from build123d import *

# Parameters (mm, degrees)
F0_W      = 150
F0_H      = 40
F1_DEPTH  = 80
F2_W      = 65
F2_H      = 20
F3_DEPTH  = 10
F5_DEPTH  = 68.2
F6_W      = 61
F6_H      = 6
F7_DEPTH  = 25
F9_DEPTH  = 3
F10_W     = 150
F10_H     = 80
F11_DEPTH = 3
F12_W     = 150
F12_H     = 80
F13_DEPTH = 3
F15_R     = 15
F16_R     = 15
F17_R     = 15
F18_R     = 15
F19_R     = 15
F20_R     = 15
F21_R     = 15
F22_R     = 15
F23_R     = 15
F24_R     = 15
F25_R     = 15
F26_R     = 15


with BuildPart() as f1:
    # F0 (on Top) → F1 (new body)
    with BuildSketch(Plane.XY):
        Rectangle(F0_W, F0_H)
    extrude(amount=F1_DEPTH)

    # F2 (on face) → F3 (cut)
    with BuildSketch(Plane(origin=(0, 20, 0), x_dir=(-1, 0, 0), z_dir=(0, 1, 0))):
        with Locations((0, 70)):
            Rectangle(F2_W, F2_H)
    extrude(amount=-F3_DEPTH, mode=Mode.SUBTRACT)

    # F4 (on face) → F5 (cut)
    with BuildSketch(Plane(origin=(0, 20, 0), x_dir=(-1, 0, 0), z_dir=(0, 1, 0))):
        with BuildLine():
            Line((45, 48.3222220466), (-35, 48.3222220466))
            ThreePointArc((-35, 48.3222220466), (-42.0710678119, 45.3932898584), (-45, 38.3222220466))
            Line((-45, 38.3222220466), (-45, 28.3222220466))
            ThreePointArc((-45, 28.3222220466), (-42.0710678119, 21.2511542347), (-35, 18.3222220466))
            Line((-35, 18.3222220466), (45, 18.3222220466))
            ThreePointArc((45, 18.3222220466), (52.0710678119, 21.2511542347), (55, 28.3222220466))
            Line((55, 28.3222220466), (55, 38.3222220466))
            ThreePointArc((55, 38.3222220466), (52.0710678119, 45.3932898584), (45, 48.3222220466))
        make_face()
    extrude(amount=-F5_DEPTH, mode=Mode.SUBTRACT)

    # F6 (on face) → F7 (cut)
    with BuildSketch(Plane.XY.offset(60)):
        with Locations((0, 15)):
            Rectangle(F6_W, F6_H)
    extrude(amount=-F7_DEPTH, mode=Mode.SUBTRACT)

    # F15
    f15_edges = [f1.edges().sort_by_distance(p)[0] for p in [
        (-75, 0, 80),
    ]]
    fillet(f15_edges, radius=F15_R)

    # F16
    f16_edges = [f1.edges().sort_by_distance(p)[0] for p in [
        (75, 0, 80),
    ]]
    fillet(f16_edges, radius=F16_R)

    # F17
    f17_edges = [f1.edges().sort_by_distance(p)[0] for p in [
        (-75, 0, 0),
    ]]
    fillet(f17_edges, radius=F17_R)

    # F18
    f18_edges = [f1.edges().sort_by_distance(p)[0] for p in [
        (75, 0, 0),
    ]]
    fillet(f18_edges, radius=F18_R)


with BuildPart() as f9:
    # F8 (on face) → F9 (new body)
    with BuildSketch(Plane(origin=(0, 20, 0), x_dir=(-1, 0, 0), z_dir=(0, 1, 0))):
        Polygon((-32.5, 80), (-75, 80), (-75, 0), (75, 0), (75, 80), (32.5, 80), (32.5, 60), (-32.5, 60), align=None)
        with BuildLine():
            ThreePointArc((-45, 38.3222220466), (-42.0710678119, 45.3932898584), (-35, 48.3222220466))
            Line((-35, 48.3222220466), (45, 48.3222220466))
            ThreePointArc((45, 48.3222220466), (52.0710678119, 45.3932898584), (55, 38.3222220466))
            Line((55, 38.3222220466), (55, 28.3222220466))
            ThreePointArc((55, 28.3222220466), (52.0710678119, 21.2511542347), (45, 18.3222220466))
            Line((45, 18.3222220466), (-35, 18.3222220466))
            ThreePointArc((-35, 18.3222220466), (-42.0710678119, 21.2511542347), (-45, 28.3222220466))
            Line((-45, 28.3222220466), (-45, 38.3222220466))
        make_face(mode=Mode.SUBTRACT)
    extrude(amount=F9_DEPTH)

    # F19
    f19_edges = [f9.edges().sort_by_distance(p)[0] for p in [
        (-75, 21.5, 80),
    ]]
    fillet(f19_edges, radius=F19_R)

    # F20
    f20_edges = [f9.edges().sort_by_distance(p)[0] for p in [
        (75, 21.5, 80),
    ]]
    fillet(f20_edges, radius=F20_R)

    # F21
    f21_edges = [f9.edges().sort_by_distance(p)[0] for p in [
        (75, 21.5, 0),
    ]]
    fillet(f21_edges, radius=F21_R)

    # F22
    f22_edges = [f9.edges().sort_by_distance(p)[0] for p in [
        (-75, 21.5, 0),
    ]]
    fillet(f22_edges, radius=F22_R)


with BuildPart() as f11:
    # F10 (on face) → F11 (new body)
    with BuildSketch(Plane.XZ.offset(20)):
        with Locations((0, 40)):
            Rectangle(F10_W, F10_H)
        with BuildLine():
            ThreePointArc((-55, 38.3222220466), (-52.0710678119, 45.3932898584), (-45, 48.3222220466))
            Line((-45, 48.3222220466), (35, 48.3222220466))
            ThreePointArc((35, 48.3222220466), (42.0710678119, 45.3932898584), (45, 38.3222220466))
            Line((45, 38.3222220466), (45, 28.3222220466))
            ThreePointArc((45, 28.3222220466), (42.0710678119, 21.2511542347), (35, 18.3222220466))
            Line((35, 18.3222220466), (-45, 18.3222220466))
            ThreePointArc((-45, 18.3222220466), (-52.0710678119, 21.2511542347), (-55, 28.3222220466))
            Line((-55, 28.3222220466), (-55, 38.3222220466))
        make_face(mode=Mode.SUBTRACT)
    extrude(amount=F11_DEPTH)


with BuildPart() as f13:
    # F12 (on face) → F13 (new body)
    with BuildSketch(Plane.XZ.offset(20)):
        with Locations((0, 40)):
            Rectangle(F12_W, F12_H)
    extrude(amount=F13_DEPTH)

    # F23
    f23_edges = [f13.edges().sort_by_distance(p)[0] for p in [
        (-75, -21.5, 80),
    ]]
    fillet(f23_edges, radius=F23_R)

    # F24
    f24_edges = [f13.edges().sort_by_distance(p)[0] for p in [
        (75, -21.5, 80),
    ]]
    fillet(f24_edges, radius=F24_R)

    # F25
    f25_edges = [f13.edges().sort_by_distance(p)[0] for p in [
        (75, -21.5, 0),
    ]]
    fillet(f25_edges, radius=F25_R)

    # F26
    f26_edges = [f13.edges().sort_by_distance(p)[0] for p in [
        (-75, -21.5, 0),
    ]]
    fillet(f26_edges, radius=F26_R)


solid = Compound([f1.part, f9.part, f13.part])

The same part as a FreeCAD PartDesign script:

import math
import FreeCAD as App
import Part
import Sketcher
Q = App.Units.Quantity


def edges_at(feature, points):
    """Names of the edges that pass closest to the given points."""
    edges = feature.Shape.Edges
    near = lambda p: min(range(len(edges)), key=lambda i: edges[i].distToShape(Part.Vertex(*p))[0])
    return sorted({f"Edge{near(p) + 1}" for p in points})

doc = App.newDocument("Part")
body = doc.addObject("PartDesign::Body", "Body")

sketch1 = body.newObject("Sketcher::SketchObject", "Sketch")
sketch1.AttachmentSupport = (doc.getObject("XY_Plane"), [""])
sketch1.MapMode = "FlatFace"
sketch1.addGeometry(Part.LineSegment(App.Vector(-75, 20, 0), App.Vector(-75, -20, 0)), False)
sketch1.addGeometry(Part.LineSegment(App.Vector(-75, -20, 0), App.Vector(75, -20, 0)), False)
sketch1.addGeometry(Part.LineSegment(App.Vector(75, -20, 0), App.Vector(75, 20, 0)), False)
sketch1.addGeometry(Part.LineSegment(App.Vector(75, 20, 0), App.Vector(-75, 20, 0)), False)
sketch1.addConstraint(Sketcher.Constraint("Coincident", 0, 2, 1, 1))
sketch1.addConstraint(Sketcher.Constraint("Coincident", 1, 2, 2, 1))
sketch1.addConstraint(Sketcher.Constraint("Coincident", 2, 2, 3, 1))
sketch1.addConstraint(Sketcher.Constraint("Coincident", 3, 2, 0, 1))
sketch1.addConstraint(Sketcher.Constraint("Vertical", 0))
sketch1.addConstraint(Sketcher.Constraint("Horizontal", 1))
sketch1.addConstraint(Sketcher.Constraint("Vertical", 2))
sketch1.addConstraint(Sketcher.Constraint("Horizontal", 3))
sketch1.addConstraint(Sketcher.Constraint("Symmetric", 0, 2, 2, 2, -1, 1))
sketch1.addConstraint(Sketcher.Constraint("DistanceX", 1, 1, 1, 2, Q("150 mm")))
sketch1.addConstraint(Sketcher.Constraint("DistanceY", 0, 2, 0, 1, Q("40 mm")))
pad1 = body.newObject("PartDesign::Pad", "Pad")
pad1.Profile = sketch1
pad1.Length = 80

sketch2 = body.newObject("Sketcher::SketchObject", "Sketch001")
sketch2.AttachmentSupport = (doc.getObject("XZ_Plane"), [""])
sketch2.MapMode = "FlatFace"
sketch2.AttachmentOffset = App.Placement(App.Vector(0, 0, -20), App.Rotation())
sketch2.addGeometry(Part.LineSegment(App.Vector(32, 80, 0), App.Vector(32, 60, 0)), False)
sketch2.addGeometry(Part.LineSegment(App.Vector(32, 60, 0), App.Vector(-32, 60, 0)), False)
sketch2.addGeometry(Part.LineSegment(App.Vector(-32, 60, 0), App.Vector(-32, 80, 0)), False)
sketch2.addGeometry(Part.LineSegment(App.Vector(-32, 80, 0), App.Vector(32, 80, 0)), False)
sketch2.addConstraint(Sketcher.Constraint("Coincident", 0, 2, 1, 1))
sketch2.addConstraint(Sketcher.Constraint("Coincident", 1, 2, 2, 1))
sketch2.addConstraint(Sketcher.Constraint("Coincident", 2, 2, 3, 1))
sketch2.addConstraint(Sketcher.Constraint("Coincident", 3, 2, 0, 1))
sketch2.addConstraint(Sketcher.Constraint("Vertical", 0))
sketch2.addConstraint(Sketcher.Constraint("Horizontal", 1))
sketch2.addConstraint(Sketcher.Constraint("Vertical", 2))
sketch2.addConstraint(Sketcher.Constraint("Horizontal", 3))
sketch2.addConstraint(Sketcher.Constraint("DistanceX", 1, 2, 1, 1, Q("65 mm")))
sketch2.addConstraint(Sketcher.Constraint("DistanceY", 0, 2, 0, 1, Q("20 mm")))
sketch2.addConstraint(Sketcher.Constraint("DistanceY", -1, 1, 0, 2, Q("60 mm")))
sketch2.addConstraint(Sketcher.Constraint("DistanceX", -1, 1, 0, 2, Q("32.5 mm")))
pocket1 = body.newObject("PartDesign::Pocket", "Pocket")
pocket1.Profile = sketch2
pocket1.Length = 10
pocket1.Reversed = True

sketch3 = body.newObject("Sketcher::SketchObject", "Sketch002")
sketch3.AttachmentSupport = (doc.getObject("XZ_Plane"), [""])
sketch3.MapMode = "FlatFace"
sketch3.AttachmentOffset = App.Placement(App.Vector(0, 0, -20), App.Rotation())
sketch3.addGeometry(Part.LineSegment(App.Vector(-45, 48, 0), App.Vector(35, 48, 0)), False)
sketch3.addGeometry(Part.ArcOfCircle(Part.Circle(App.Vector(35, 38, 0), App.Vector(0, 0, 1), 10), math.radians(0), math.radians(90)), False)
sketch3.addGeometry(Part.LineSegment(App.Vector(45, 38, 0), App.Vector(45, 28, 0)), False)
sketch3.addGeometry(Part.ArcOfCircle(Part.Circle(App.Vector(35, 28, 0), App.Vector(0, 0, 1), 10), math.radians(-90), math.radians(0)), False)
sketch3.addGeometry(Part.LineSegment(App.Vector(35, 18, 0), App.Vector(-45, 18, 0)), False)
sketch3.addGeometry(Part.ArcOfCircle(Part.Circle(App.Vector(-45, 28, 0), App.Vector(0, 0, 1), 10), math.radians(180), math.radians(270)), False)
sketch3.addGeometry(Part.LineSegment(App.Vector(-55, 28, 0), App.Vector(-55, 38, 0)), False)
sketch3.addGeometry(Part.ArcOfCircle(Part.Circle(App.Vector(-45, 38, 0), App.Vector(0, 0, 1), 10), math.radians(90), math.radians(180)), False)
sketch3.addConstraint(Sketcher.Constraint("Tangent", 0, 2, 1, 2))
sketch3.addConstraint(Sketcher.Constraint("Tangent", 1, 1, 2, 1))
sketch3.addConstraint(Sketcher.Constraint("Tangent", 2, 2, 3, 2))
sketch3.addConstraint(Sketcher.Constraint("Tangent", 3, 1, 4, 1))
sketch3.addConstraint(Sketcher.Constraint("Tangent", 4, 2, 5, 2))
sketch3.addConstraint(Sketcher.Constraint("Tangent", 5, 1, 6, 1))
sketch3.addConstraint(Sketcher.Constraint("Tangent", 6, 2, 7, 2))
sketch3.addConstraint(Sketcher.Constraint("Tangent", 7, 1, 0, 1))
sketch3.addConstraint(Sketcher.Constraint("Horizontal", 0))
sketch3.addConstraint(Sketcher.Constraint("Vertical", 2))
sketch3.addConstraint(Sketcher.Constraint("Horizontal", 4))
sketch3.addConstraint(Sketcher.Constraint("Vertical", 6))
sketch3.addConstraint(Sketcher.Constraint("Equal", 1, 3))
sketch3.addConstraint(Sketcher.Constraint("Equal", 3, 5))
sketch3.addConstraint(Sketcher.Constraint("Equal", 5, 7))
sketch3.addConstraint(Sketcher.Constraint("Radius", 1, Q("10 mm")))
sketch3.addConstraint(Sketcher.Constraint("DistanceX", 0, 1, 0, 2, Q("80 mm")))
sketch3.addConstraint(Sketcher.Constraint("DistanceY", 2, 2, 2, 1, Q("10 mm")))
sketch3.addConstraint(Sketcher.Constraint("DistanceX", -1, 1, 1, 3, Q("35 mm")))
sketch3.addConstraint(Sketcher.Constraint("DistanceY", -1, 1, 1, 3, Q("38.322222 mm")))
pocket2 = body.newObject("PartDesign::Pocket", "Pocket001")
pocket2.Profile = sketch3
pocket2.Length = 68.2
pocket2.Reversed = True

sketch4 = body.newObject("Sketcher::SketchObject", "Sketch003")
sketch4.AttachmentSupport = (doc.getObject("XY_Plane"), [""])
sketch4.MapMode = "FlatFace"
sketch4.AttachmentOffset = App.Placement(App.Vector(0, 0, 60), App.Rotation())
sketch4.addGeometry(Part.LineSegment(App.Vector(-30, 18, 0), App.Vector(-30, 12, 0)), False)
sketch4.addGeometry(Part.LineSegment(App.Vector(-30, 12, 0), App.Vector(30, 12, 0)), False)
sketch4.addGeometry(Part.LineSegment(App.Vector(30, 12, 0), App.Vector(30, 18, 0)), False)
sketch4.addGeometry(Part.LineSegment(App.Vector(30, 18, 0), App.Vector(-30, 18, 0)), False)
sketch4.addConstraint(Sketcher.Constraint("Coincident", 0, 2, 1, 1))
sketch4.addConstraint(Sketcher.Constraint("Coincident", 1, 2, 2, 1))
sketch4.addConstraint(Sketcher.Constraint("Coincident", 2, 2, 3, 1))
sketch4.addConstraint(Sketcher.Constraint("Coincident", 3, 2, 0, 1))
sketch4.addConstraint(Sketcher.Constraint("Vertical", 0))
sketch4.addConstraint(Sketcher.Constraint("Horizontal", 1))
sketch4.addConstraint(Sketcher.Constraint("Vertical", 2))
sketch4.addConstraint(Sketcher.Constraint("Horizontal", 3))
sketch4.addConstraint(Sketcher.Constraint("DistanceX", 1, 1, 1, 2, Q("61 mm")))
sketch4.addConstraint(Sketcher.Constraint("DistanceY", 0, 2, 0, 1, Q("6 mm")))
sketch4.addConstraint(Sketcher.Constraint("DistanceY", -1, 1, 0, 2, Q("12 mm")))
sketch4.addConstraint(Sketcher.Constraint("DistanceX", 0, 2, -1, 1, Q("30.5 mm")))
pocket3 = body.newObject("PartDesign::Pocket", "Pocket002")
pocket3.Profile = sketch4
pocket3.Length = 25
doc.recompute()

fillet = body.newObject("PartDesign::Fillet", "Fillet")
fillet.Base = (pocket3, edges_at(pocket3, [(-75, 0, 80)]))
fillet.Radius = 15
doc.recompute()

fillet2 = body.newObject("PartDesign::Fillet", "Fillet001")
fillet2.Base = (fillet, edges_at(fillet, [(75, 0, 80)]))
fillet2.Radius = 15
doc.recompute()

fillet3 = body.newObject("PartDesign::Fillet", "Fillet002")
fillet3.Base = (fillet2, edges_at(fillet2, [(-75, 0, 0)]))
fillet3.Radius = 15
doc.recompute()

fillet4 = body.newObject("PartDesign::Fillet", "Fillet003")
fillet4.Base = (fillet3, edges_at(fillet3, [(75, 0, 0)]))
fillet4.Radius = 15
body2 = doc.addObject("PartDesign::Body", "Body001")

sketch5 = body2.newObject("Sketcher::SketchObject", "Sketch004")
sketch5.AttachmentSupport = (doc.getObject("XZ_Plane001"), [""])
sketch5.MapMode = "FlatFace"
sketch5.AttachmentOffset = App.Placement(App.Vector(0, 0, -20), App.Rotation())
sketch5.addGeometry(Part.LineSegment(App.Vector(32, 80, 0), App.Vector(75, 80, 0)), False)
sketch5.addGeometry(Part.LineSegment(App.Vector(75, 80, 0), App.Vector(75, 0, 0)), False)
sketch5.addGeometry(Part.LineSegment(App.Vector(75, 0, 0), App.Vector(-75, 0, 0)), False)
sketch5.addGeometry(Part.LineSegment(App.Vector(-75, 0, 0), App.Vector(-75, 80, 0)), False)
sketch5.addGeometry(Part.LineSegment(App.Vector(-75, 80, 0), App.Vector(-32, 80, 0)), False)
sketch5.addGeometry(Part.LineSegment(App.Vector(-32, 80, 0), App.Vector(-32, 60, 0)), False)
sketch5.addGeometry(Part.LineSegment(App.Vector(-32, 60, 0), App.Vector(32, 60, 0)), False)
sketch5.addGeometry(Part.LineSegment(App.Vector(32, 60, 0), App.Vector(32, 80, 0)), False)
sketch5.addGeometry(Part.LineSegment(App.Vector(45, 28, 0), App.Vector(45, 38, 0)), False)
sketch5.addGeometry(Part.ArcOfCircle(Part.Circle(App.Vector(35, 38, 0), App.Vector(0, 0, 1), 10), math.radians(0), math.radians(90)), False)
sketch5.addGeometry(Part.LineSegment(App.Vector(35, 48, 0), App.Vector(-45, 48, 0)), False)
sketch5.addGeometry(Part.ArcOfCircle(Part.Circle(App.Vector(-45, 38, 0), App.Vector(0, 0, 1), 10), math.radians(90), math.radians(180)), False)
sketch5.addGeometry(Part.LineSegment(App.Vector(-55, 38, 0), App.Vector(-55, 28, 0)), False)
sketch5.addGeometry(Part.ArcOfCircle(Part.Circle(App.Vector(-45, 28, 0), App.Vector(0, 0, 1), 10), math.radians(180), math.radians(270)), False)
sketch5.addGeometry(Part.LineSegment(App.Vector(-45, 18, 0), App.Vector(35, 18, 0)), False)
sketch5.addGeometry(Part.ArcOfCircle(Part.Circle(App.Vector(35, 28, 0), App.Vector(0, 0, 1), 10), math.radians(-90), math.radians(0)), False)
sketch5.addConstraint(Sketcher.Constraint("Coincident", 0, 2, 1, 1))
sketch5.addConstraint(Sketcher.Constraint("Coincident", 1, 2, 2, 1))
sketch5.addConstraint(Sketcher.Constraint("Coincident", 2, 2, 3, 1))
sketch5.addConstraint(Sketcher.Constraint("Coincident", 3, 2, 4, 1))
sketch5.addConstraint(Sketcher.Constraint("Coincident", 4, 2, 5, 1))
sketch5.addConstraint(Sketcher.Constraint("Coincident", 5, 2, 6, 1))
sketch5.addConstraint(Sketcher.Constraint("Coincident", 6, 2, 7, 1))
sketch5.addConstraint(Sketcher.Constraint("Coincident", 7, 2, 0, 1))
sketch5.addConstraint(Sketcher.Constraint("Tangent", 8, 2, 9, 1))
sketch5.addConstraint(Sketcher.Constraint("Tangent", 9, 2, 10, 1))
sketch5.addConstraint(Sketcher.Constraint("Tangent", 10, 2, 11, 1))
sketch5.addConstraint(Sketcher.Constraint("Tangent", 11, 2, 12, 1))
sketch5.addConstraint(Sketcher.Constraint("Tangent", 12, 2, 13, 1))
sketch5.addConstraint(Sketcher.Constraint("Tangent", 13, 2, 14, 1))
sketch5.addConstraint(Sketcher.Constraint("Tangent", 14, 2, 15, 1))
sketch5.addConstraint(Sketcher.Constraint("Tangent", 15, 2, 8, 1))
sketch5.addConstraint(Sketcher.Constraint("Horizontal", 0))
sketch5.addConstraint(Sketcher.Constraint("Vertical", 1))
sketch5.addConstraint(Sketcher.Constraint("Horizontal", 2))
sketch5.addConstraint(Sketcher.Constraint("Vertical", 3))
sketch5.addConstraint(Sketcher.Constraint("Horizontal", 4))
sketch5.addConstraint(Sketcher.Constraint("Vertical", 5))
sketch5.addConstraint(Sketcher.Constraint("Horizontal", 6))
sketch5.addConstraint(Sketcher.Constraint("Vertical", 7))
sketch5.addConstraint(Sketcher.Constraint("Vertical", 8))
sketch5.addConstraint(Sketcher.Constraint("Horizontal", 10))
sketch5.addConstraint(Sketcher.Constraint("Vertical", 12))
sketch5.addConstraint(Sketcher.Constraint("Horizontal", 14))
sketch5.addConstraint(Sketcher.Constraint("Equal", 9, 11))
sketch5.addConstraint(Sketcher.Constraint("Equal", 11, 13))
sketch5.addConstraint(Sketcher.Constraint("Equal", 13, 15))
sketch5.addConstraint(Sketcher.Constraint("Symmetric", 1, 2, 2, 2, -1, 1))
sketch5.addConstraint(Sketcher.Constraint("Symmetric", 4, 2, 7, 2, -2))
sketch5.addConstraint(Sketcher.Constraint("Equal", 14, 1))
sketch5.addConstraint(Sketcher.Constraint("Radius", 9, Q("10 mm")))
sketch5.addConstraint(Sketcher.Constraint("DistanceX", 2, 2, 2, 1, Q("150 mm")))
sketch5.addConstraint(Sketcher.Constraint("DistanceX", 6, 1, 6, 2, Q("65 mm")))
sketch5.addConstraint(Sketcher.Constraint("DistanceX", 10, 2, 10, 1, Q("80 mm")))
sketch5.addConstraint(Sketcher.Constraint("DistanceY", 5, 2, 5, 1, Q("20 mm")))
sketch5.addConstraint(Sketcher.Constraint("DistanceY", 8, 1, 8, 2, Q("10 mm")))
sketch5.addConstraint(Sketcher.Constraint("DistanceX", -1, 1, 9, 3, Q("35 mm")))
sketch5.addConstraint(Sketcher.Constraint("DistanceY", -1, 1, 9, 3, Q("38.322222 mm")))
pad2 = body2.newObject("PartDesign::Pad", "Pad001")
pad2.Profile = sketch5
pad2.Length = 3
pad2.Reversed = True
doc.recompute()

fillet5 = body2.newObject("PartDesign::Fillet", "Fillet004")
fillet5.Base = (pad2, edges_at(pad2, [(-75, 21.5, 80)]))
fillet5.Radius = 15
doc.recompute()

fillet6 = body2.newObject("PartDesign::Fillet", "Fillet005")
fillet6.Base = (fillet5, edges_at(fillet5, [(75, 21.5, 80)]))
fillet6.Radius = 15
doc.recompute()

fillet7 = body2.newObject("PartDesign::Fillet", "Fillet006")
fillet7.Base = (fillet6, edges_at(fillet6, [(75, 21.5, 0)]))
fillet7.Radius = 15
doc.recompute()

fillet8 = body2.newObject("PartDesign::Fillet", "Fillet007")
fillet8.Base = (fillet7, edges_at(fillet7, [(-75, 21.5, 0)]))
fillet8.Radius = 15
body3 = doc.addObject("PartDesign::Body", "Body002")

sketch6 = body3.newObject("Sketcher::SketchObject", "Sketch005")
sketch6.AttachmentSupport = (doc.getObject("XZ_Plane002"), [""])
sketch6.MapMode = "FlatFace"
sketch6.AttachmentOffset = App.Placement(App.Vector(0, 0, 20), App.Rotation())
sketch6.addGeometry(Part.LineSegment(App.Vector(-75, 80, 0), App.Vector(-75, 0, 0)), False)
sketch6.addGeometry(Part.LineSegment(App.Vector(-75, 0, 0), App.Vector(75, 0, 0)), False)
sketch6.addGeometry(Part.LineSegment(App.Vector(75, 0, 0), App.Vector(75, 80, 0)), False)
sketch6.addGeometry(Part.LineSegment(App.Vector(75, 80, 0), App.Vector(-75, 80, 0)), False)
sketch6.addGeometry(Part.LineSegment(App.Vector(-55, 28, 0), App.Vector(-55, 38, 0)), False)
sketch6.addGeometry(Part.ArcOfCircle(Part.Circle(App.Vector(-45, 38, 0), App.Vector(0, 0, 1), 10), math.radians(90), math.radians(180)), False)
sketch6.addGeometry(Part.LineSegment(App.Vector(-45, 48, 0), App.Vector(35, 48, 0)), False)
sketch6.addGeometry(Part.ArcOfCircle(Part.Circle(App.Vector(35, 38, 0), App.Vector(0, 0, 1), 10), math.radians(0), math.radians(90)), False)
sketch6.addGeometry(Part.LineSegment(App.Vector(45, 38, 0), App.Vector(45, 28, 0)), False)
sketch6.addGeometry(Part.ArcOfCircle(Part.Circle(App.Vector(35, 28, 0), App.Vector(0, 0, 1), 10), math.radians(-90), math.radians(0)), False)
sketch6.addGeometry(Part.LineSegment(App.Vector(35, 18, 0), App.Vector(-45, 18, 0)), False)
sketch6.addGeometry(Part.ArcOfCircle(Part.Circle(App.Vector(-45, 28, 0), App.Vector(0, 0, 1), 10), math.radians(180), math.radians(270)), False)
sketch6.addConstraint(Sketcher.Constraint("Coincident", 0, 2, 1, 1))
sketch6.addConstraint(Sketcher.Constraint("Coincident", 1, 2, 2, 1))
sketch6.addConstraint(Sketcher.Constraint("Coincident", 2, 2, 3, 1))
sketch6.addConstraint(Sketcher.Constraint("Coincident", 3, 2, 0, 1))
sketch6.addConstraint(Sketcher.Constraint("Tangent", 4, 2, 5, 2))
sketch6.addConstraint(Sketcher.Constraint("Tangent", 5, 1, 6, 1))
sketch6.addConstraint(Sketcher.Constraint("Tangent", 6, 2, 7, 2))
sketch6.addConstraint(Sketcher.Constraint("Tangent", 7, 1, 8, 1))
sketch6.addConstraint(Sketcher.Constraint("Tangent", 8, 2, 9, 2))
sketch6.addConstraint(Sketcher.Constraint("Tangent", 9, 1, 10, 1))
sketch6.addConstraint(Sketcher.Constraint("Tangent", 10, 2, 11, 2))
sketch6.addConstraint(Sketcher.Constraint("Tangent", 11, 1, 4, 1))
sketch6.addConstraint(Sketcher.Constraint("Vertical", 0))
sketch6.addConstraint(Sketcher.Constraint("Horizontal", 1))
sketch6.addConstraint(Sketcher.Constraint("Vertical", 2))
sketch6.addConstraint(Sketcher.Constraint("Horizontal", 3))
sketch6.addConstraint(Sketcher.Constraint("Vertical", 4))
sketch6.addConstraint(Sketcher.Constraint("Horizontal", 6))
sketch6.addConstraint(Sketcher.Constraint("Vertical", 8))
sketch6.addConstraint(Sketcher.Constraint("Horizontal", 10))
sketch6.addConstraint(Sketcher.Constraint("Equal", 5, 7))
sketch6.addConstraint(Sketcher.Constraint("Equal", 7, 9))
sketch6.addConstraint(Sketcher.Constraint("Equal", 9, 11))
sketch6.addConstraint(Sketcher.Constraint("Symmetric", 0, 2, 1, 2, -1, 1))
sketch6.addConstraint(Sketcher.Constraint("Equal", 10, 0))
sketch6.addConstraint(Sketcher.Constraint("Radius", 5, Q("10 mm")))
sketch6.addConstraint(Sketcher.Constraint("DistanceX", 1, 1, 1, 2, Q("150 mm")))
sketch6.addConstraint(Sketcher.Constraint("DistanceX", 6, 1, 6, 2, Q("80 mm")))
sketch6.addConstraint(Sketcher.Constraint("DistanceY", 4, 1, 4, 2, Q("10 mm")))
sketch6.addConstraint(Sketcher.Constraint("DistanceX", 5, 3, -1, 1, Q("45 mm")))
sketch6.addConstraint(Sketcher.Constraint("DistanceY", -1, 1, 5, 3, Q("38.322222 mm")))
pad3 = body3.newObject("PartDesign::Pad", "Pad002")
pad3.Profile = sketch6
pad3.Length = 3
body4 = doc.addObject("PartDesign::Body", "Body003")

sketch7 = body4.newObject("Sketcher::SketchObject", "Sketch006")
sketch7.AttachmentSupport = (doc.getObject("XZ_Plane003"), [""])
sketch7.MapMode = "FlatFace"
sketch7.AttachmentOffset = App.Placement(App.Vector(0, 0, 20), App.Rotation())
sketch7.addGeometry(Part.LineSegment(App.Vector(-75, 80, 0), App.Vector(-75, 0, 0)), False)
sketch7.addGeometry(Part.LineSegment(App.Vector(-75, 0, 0), App.Vector(75, 0, 0)), False)
sketch7.addGeometry(Part.LineSegment(App.Vector(75, 0, 0), App.Vector(75, 80, 0)), False)
sketch7.addGeometry(Part.LineSegment(App.Vector(75, 80, 0), App.Vector(-75, 80, 0)), False)
sketch7.addConstraint(Sketcher.Constraint("Coincident", 0, 2, 1, 1))
sketch7.addConstraint(Sketcher.Constraint("Coincident", 1, 2, 2, 1))
sketch7.addConstraint(Sketcher.Constraint("Coincident", 2, 2, 3, 1))
sketch7.addConstraint(Sketcher.Constraint("Coincident", 3, 2, 0, 1))
sketch7.addConstraint(Sketcher.Constraint("Vertical", 0))
sketch7.addConstraint(Sketcher.Constraint("Horizontal", 1))
sketch7.addConstraint(Sketcher.Constraint("Vertical", 2))
sketch7.addConstraint(Sketcher.Constraint("Horizontal", 3))
sketch7.addConstraint(Sketcher.Constraint("Symmetric", 0, 2, 1, 2, -1, 1))
sketch7.addConstraint(Sketcher.Constraint("DistanceX", 1, 1, 1, 2, Q("150 mm")))
sketch7.addConstraint(Sketcher.Constraint("DistanceY", 0, 2, 0, 1, Q("80 mm")))
pad4 = body4.newObject("PartDesign::Pad", "Pad003")
pad4.Profile = sketch7
pad4.Length = 3
doc.recompute()

fillet9 = body4.newObject("PartDesign::Fillet", "Fillet008")
fillet9.Base = (pad4, edges_at(pad4, [(-75, -21.5, 80)]))
fillet9.Radius = 15
doc.recompute()

fillet10 = body4.newObject("PartDesign::Fillet", "Fillet009")
fillet10.Base = (fillet9, edges_at(fillet9, [(75, -21.5, 80)]))
fillet10.Radius = 15
doc.recompute()

fillet11 = body4.newObject("PartDesign::Fillet", "Fillet010")
fillet11.Base = (fillet10, edges_at(fillet10, [(75, -21.5, 0)]))
fillet11.Radius = 15
doc.recompute()

fillet12 = body4.newObject("PartDesign::Fillet", "Fillet011")
fillet12.Base = (fillet11, edges_at(fillet11, [(-75, -21.5, 0)]))
fillet12.Radius = 15
body3.Visibility = False

doc.recompute()
